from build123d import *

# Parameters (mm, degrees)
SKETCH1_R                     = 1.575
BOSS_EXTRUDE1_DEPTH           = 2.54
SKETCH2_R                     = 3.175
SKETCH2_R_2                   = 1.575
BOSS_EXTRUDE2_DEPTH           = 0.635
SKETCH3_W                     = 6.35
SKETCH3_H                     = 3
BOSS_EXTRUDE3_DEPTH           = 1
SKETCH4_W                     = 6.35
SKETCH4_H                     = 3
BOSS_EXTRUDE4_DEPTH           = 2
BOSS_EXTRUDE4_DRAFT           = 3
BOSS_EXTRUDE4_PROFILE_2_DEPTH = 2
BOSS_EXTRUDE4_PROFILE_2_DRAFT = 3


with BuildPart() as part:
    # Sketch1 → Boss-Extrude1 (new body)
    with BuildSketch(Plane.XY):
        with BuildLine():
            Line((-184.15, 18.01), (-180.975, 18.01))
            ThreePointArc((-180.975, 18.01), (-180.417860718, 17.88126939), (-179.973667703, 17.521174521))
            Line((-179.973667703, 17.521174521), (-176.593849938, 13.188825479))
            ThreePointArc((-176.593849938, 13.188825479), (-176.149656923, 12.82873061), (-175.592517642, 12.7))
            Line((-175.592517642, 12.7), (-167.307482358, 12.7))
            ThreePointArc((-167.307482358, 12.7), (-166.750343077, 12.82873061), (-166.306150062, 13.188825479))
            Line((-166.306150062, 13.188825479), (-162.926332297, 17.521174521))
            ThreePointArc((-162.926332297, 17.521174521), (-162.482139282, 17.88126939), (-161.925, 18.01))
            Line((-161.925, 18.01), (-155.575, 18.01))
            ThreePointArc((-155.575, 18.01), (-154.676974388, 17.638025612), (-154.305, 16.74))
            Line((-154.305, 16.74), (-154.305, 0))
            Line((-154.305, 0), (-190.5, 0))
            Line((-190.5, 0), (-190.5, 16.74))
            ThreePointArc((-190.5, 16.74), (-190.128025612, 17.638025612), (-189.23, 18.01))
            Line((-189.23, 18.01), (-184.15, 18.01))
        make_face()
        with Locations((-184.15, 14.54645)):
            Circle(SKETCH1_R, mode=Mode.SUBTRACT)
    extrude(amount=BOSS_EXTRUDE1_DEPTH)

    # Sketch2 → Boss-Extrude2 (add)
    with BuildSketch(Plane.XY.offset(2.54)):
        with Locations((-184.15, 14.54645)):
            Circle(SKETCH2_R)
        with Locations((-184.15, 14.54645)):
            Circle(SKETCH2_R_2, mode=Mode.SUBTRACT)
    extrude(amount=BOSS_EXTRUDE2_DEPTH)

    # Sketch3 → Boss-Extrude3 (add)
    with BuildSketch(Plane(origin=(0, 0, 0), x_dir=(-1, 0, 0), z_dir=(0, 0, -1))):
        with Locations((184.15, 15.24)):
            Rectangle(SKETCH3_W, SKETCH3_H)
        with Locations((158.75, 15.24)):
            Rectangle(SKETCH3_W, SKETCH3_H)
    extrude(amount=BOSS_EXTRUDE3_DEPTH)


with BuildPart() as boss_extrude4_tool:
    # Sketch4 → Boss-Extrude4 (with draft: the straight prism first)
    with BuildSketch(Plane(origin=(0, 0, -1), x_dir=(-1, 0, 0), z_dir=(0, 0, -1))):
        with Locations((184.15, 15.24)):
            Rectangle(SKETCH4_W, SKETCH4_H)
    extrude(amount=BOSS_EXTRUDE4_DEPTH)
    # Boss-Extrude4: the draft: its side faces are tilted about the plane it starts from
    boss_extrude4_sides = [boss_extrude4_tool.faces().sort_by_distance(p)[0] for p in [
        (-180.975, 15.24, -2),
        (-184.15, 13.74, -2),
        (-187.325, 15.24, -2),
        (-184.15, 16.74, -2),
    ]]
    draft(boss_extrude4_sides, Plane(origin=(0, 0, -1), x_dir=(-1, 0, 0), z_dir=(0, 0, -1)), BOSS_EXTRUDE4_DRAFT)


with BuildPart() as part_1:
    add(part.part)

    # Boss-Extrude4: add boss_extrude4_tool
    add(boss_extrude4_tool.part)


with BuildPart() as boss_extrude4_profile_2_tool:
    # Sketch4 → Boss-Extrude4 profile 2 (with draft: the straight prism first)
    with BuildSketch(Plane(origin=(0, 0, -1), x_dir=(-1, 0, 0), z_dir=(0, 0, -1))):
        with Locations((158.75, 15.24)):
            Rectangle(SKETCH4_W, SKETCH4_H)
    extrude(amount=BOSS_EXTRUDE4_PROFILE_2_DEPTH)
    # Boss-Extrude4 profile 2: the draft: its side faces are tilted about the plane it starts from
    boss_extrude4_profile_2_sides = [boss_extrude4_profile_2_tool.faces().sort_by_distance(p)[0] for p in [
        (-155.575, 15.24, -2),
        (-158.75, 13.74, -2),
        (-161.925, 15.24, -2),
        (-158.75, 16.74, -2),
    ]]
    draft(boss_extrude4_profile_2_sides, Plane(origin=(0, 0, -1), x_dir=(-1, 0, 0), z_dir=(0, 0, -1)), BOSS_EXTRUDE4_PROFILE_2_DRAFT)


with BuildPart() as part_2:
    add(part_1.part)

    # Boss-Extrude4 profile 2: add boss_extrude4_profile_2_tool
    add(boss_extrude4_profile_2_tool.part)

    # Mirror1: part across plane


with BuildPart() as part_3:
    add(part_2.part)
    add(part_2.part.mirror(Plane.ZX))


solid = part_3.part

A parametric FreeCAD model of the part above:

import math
import FreeCAD as App
import Part
import Sketcher

V = App.Vector
Q = App.Units.Quantity


def faces_at(feature, points):
    """Names of the faces that lie closest to the given points."""
    faces = feature.Shape.Faces
    near = lambda p: min(range(len(faces)), key=lambda i: faces[i].distToShape(Part.Vertex(*p))[0])
    return sorted({f"Face{near(p) + 1}" for p in points})

doc = App.newDocument("Part")
body = doc.addObject("PartDesign::Body", "Body")

# Sketch on XY plane
sketch1 = body.newObject("Sketcher::SketchObject", "Sketch")
sketch1.AttachmentSupport = (doc.getObject("XY_Plane"), [""])
sketch1.MapMode = "FlatFace"
sketch1.addGeometry([
    Part.ArcOfCircle(Part.Circle(V(-181, 16.7, 0), V(0, 0, 1), 1.3), math.radians(38), math.radians(90)),  # 0
    Part.LineSegment(V(-181, 18, 0), V(-189.2, 18, 0)),  # 1
    Part.ArcOfCircle(Part.Circle(V(-189.2, 16.7, 0), V(0, 0, 1), 1.3), math.radians(90), math.radians(180)),  # 2
    Part.LineSegment(V(-190.5, 16.7, 0), V(-190.5, 0, 0)),  # 3
    Part.LineSegment(V(-190.5, 0, 0), V(-154.3, 0, 0)),  # 4
    Part.LineSegment(V(-154.3, 0, 0), V(-154.3, 16.7, 0)),  # 5
    Part.ArcOfCircle(Part.Circle(V(-155.6, 16.7, 0), V(0, 0, 1), 1.3), math.radians(0), math.radians(90)),  # 6
    Part.LineSegment(V(-155.6, 18, 0), V(-161.9, 18, 0)),  # 7
    Part.ArcOfCircle(Part.Circle(V(-161.9, 16.7, 0), V(0, 0, 1), 1.3), math.radians(90), math.radians(142)),  # 8
    Part.LineSegment(V(-162.9, 17.5, 0), V(-166.3, 13.2, 0)),  # 9
    Part.ArcOfCircle(Part.Circle(V(-167.3, 14, 0), V(0, 0, 1), 1.3), math.radians(-90), math.radians(-38)),  # 10
    Part.LineSegment(V(-167.3, 12.7, 0), V(-175.6, 12.7, 0)),  # 11
    Part.ArcOfCircle(Part.Circle(V(-175.6, 14, 0), V(0, 0, 1), 1.3), math.radians(-142), math.radians(-90)),  # 12
    Part.LineSegment(V(-176.6, 13.2, 0), V(-180, 17.5, 0)),  # 13
    Part.Circle(V(-184.2, 14.5, 0), V(0, 0, 1), 1.6),  # 14
], False)
sketch1.addConstraint([
    Sketcher.Constraint("Tangent", 0, 2, 1, 1),
    Sketcher.Constraint("Tangent", 1, 2, 2, 1),
    Sketcher.Constraint("Tangent", 2, 2, 3, 1),
    Sketcher.Constraint("Coincident", 3, 2, 4, 1),
    Sketcher.Constraint("Coincident", 4, 2, 5, 1),
    Sketcher.Constraint("Tangent", 5, 2, 6, 1),
    Sketcher.Constraint("Tangent", 6, 2, 7, 1),
    Sketcher.Constraint("Tangent", 7, 2, 8, 1),
    Sketcher.Constraint("Tangent", 8, 2, 9, 1),
    Sketcher.Constraint("Tangent", 9, 2, 10, 2),
    Sketcher.Constraint("Tangent", 10, 1, 11, 1),
    Sketcher.Constraint("Tangent", 11, 2, 12, 2),
    Sketcher.Constraint("Tangent", 12, 1, 13, 1),
    Sketcher.Constraint("Tangent", 13, 2, 0, 1),
    Sketcher.Constraint("Horizontal", 1),
    Sketcher.Constraint("Vertical", 3),
    Sketcher.Constraint("Horizontal", 4),
    Sketcher.Constraint("Vertical", 5),
    Sketcher.Constraint("Horizontal", 7),
    Sketcher.Constraint("Horizontal", 11),
    Sketcher.Constraint("Equal", 0, 2),
    Sketcher.Constraint("Equal", 2, 6),
    Sketcher.Constraint("Equal", 6, 8),
    Sketcher.Constraint("Equal", 8, 10),
    Sketcher.Constraint("Equal", 10, 12),
    Sketcher.Constraint("PointOnObject", 3, 2, -1),
    Sketcher.Constraint("Horizontal", 2, 3, 6, 3),
    Sketcher.Constraint("Horizontal", 9, 2, 12, 1),
    Sketcher.Constraint("Radius", 0, Q("0.05 in")),
    Sketcher.Constraint("DistanceX", 0, 3, 6, 3, Q("1 in")),
    Sketcher.Constraint("DistanceX", 7, 2, 7, 1, Q("0.25 in")),
    Sketcher.Constraint("DistanceX", 2, 2, -1, 1, Q("7.5 in")),
    Sketcher.Constraint("DistanceY", -1, 1, 10, 1, Q("0.5 in")),
    Sketcher.Constraint("DistanceX", 2, 3, 14, 3, Q("0.2 in")),
    Sketcher.Constraint("Diameter", 14, 3.15),
    Sketcher.Constraint("DistanceX", 1, 2, 1, 1, Q("0.325 in")),
    Sketcher.Constraint("DistanceY", 3, 2, 3, 1, 16.74),
    Sketcher.Constraint("DistanceX", 11, 2, 11, 1, 8.285035),
    Sketcher.Constraint("DistanceY", -1, 1, 14, 3, 14.54645),
])
pad1 = body.newObject("PartDesign::Pad", "Pad")
pad1.Profile = sketch1
pad1.Length = Q("0.1 in")

# Sketch on XY plane
sketch2 = body.newObject("Sketcher::SketchObject", "Sketch001")
sketch2.AttachmentSupport = (doc.getObject("XY_Plane"), [""])
sketch2.MapMode = "FlatFace"
sketch2.AttachmentOffset = App.Placement(V(0, 0, 0.1 * 25.4), App.Rotation())
sketch2.addGeometry([
    Part.Circle(V(-184.2, 14.5, 0), V(0, 0, 1), 3.2),
    Part.Circle(V(-184.2, 14.5, 0), V(0, 0, 1), 1.6),
], False)
sketch2.addConstraint([
    Sketcher.Constraint("Coincident", 1, 3, 0, 3),
    Sketcher.Constraint("Diameter", 0, Q("0.25 in")),
    Sketcher.Constraint("Diameter", 1, 3.15),
    Sketcher.Constraint("DistanceX", 0, 3, -1, 1, Q("7.25 in")),
    Sketcher.Constraint("DistanceY", -1, 1, 0, 3, 14.54645),
])
pad2 = body.newObject("PartDesign::Pad", "Pad001")
pad2.Profile = sketch2
pad2.Length = Q("0.025 in")

# Sketch on XY plane
sketch3 = body.newObject("Sketcher::SketchObject", "Sketch002")
sketch3.AttachmentSupport = (doc.getObject("XY_Plane"), [""])
sketch3.MapMode = "FlatFace"
sketch3.addGeometry([
    Part.LineSegment(V(-181, 16.7, 0), V(-181, 13.7, 0)),  # 0
    Part.LineSegment(V(-181, 13.7, 0), V(-187.3, 13.7, 0)),  # 1
    Part.LineSegment(V(-187.3, 13.7, 0), V(-187.3, 16.7, 0)),  # 2
    Part.LineSegment(V(-187.3, 16.7, 0), V(-181, 16.7, 0)),  # 3
    Part.LineSegment(V(-155.6, 16.7, 0), V(-155.6, 13.7, 0)),  # 4
    Part.LineSegment(V(-155.6, 13.7, 0), V(-161.9, 13.7, 0)),  # 5
    Part.LineSegment(V(-161.9, 13.7, 0), V(-161.9, 16.7, 0)),  # 6
    Part.LineSegment(V(-161.9, 16.7, 0), V(-155.6, 16.7, 0)),  # 7
], False)
sketch3.addConstraint([
    Sketcher.Constraint("Coincident", 0, 2, 1, 1),
    Sketcher.Constraint("Coincident", 1, 2, 2, 1),
    Sketcher.Constraint("Coincident", 2, 2, 3, 1),
    Sketcher.Constraint("Coincident", 3, 2, 0, 1),
    Sketcher.Constraint("Coincident", 4, 2, 5, 1),
    Sketcher.Constraint("Coincident", 5, 2, 6, 1),
    Sketcher.Constraint("Coincident", 6, 2, 7, 1),
    Sketcher.Constraint("Coincident", 7, 2, 4, 1),
    Sketcher.Constraint("Vertical", 0),
    Sketcher.Constraint("Horizontal", 1),
    Sketcher.Constraint("Vertical", 2),
    Sketcher.Constraint("Horizontal", 3),
    Sketcher.Constraint("Vertical", 4),
    Sketcher.Constraint("Horizontal", 5),
    Sketcher.Constraint("Vertical", 6),
    Sketcher.Constraint("Horizontal", 7),
    Sketcher.Constraint("Horizontal", 1, 2, 4, 2),
    Sketcher.Constraint("Horizontal", 3, 2, 6, 2),
    Sketcher.Constraint("Equal", 3, 5),
    Sketcher.Constraint("DistanceX", 0, 2, 4, 2, Q("1 in")),
    Sketcher.Constraint("DistanceX", 1, 2, 1, 1, Q("0.25 in")),
    Sketcher.Constraint("DistanceX", 0, 2, -1, 1, Q("7.125 in")),
    Sketcher.Constraint("DistanceY", 0, 2, 0, 1, 3.0),
    Sketcher.Constraint("DistanceY", -1, 1, 0, 2, 13.74),
])
pad3 = body.newObject("PartDesign::Pad", "Pad002")
pad3.Profile = sketch3
pad3.Length = 1
pad3.Reversed = True
body2 = doc.addObject("PartDesign::Body", "Body001")

# Sketch on XY plane
sketch4 = body2.newObject("Sketcher::SketchObject", "Sketch003")
sketch4.AttachmentSupport = (doc.getObject("XY_Plane001"), [""])
sketch4.MapMode = "FlatFace"
sketch4.AttachmentOffset = App.Placement(V(0, 0, -1), App.Rotation())
sketch4.addGeometry([
    Part.LineSegment(V(-181, 16.7, 0), V(-181, 13.7, 0)),
    Part.LineSegment(V(-181, 13.7, 0), V(-187.3, 13.7, 0)),
    Part.LineSegment(V(-187.3, 13.7, 0), V(-187.3, 16.7, 0)),
    Part.LineSegment(V(-187.3, 16.7, 0), V(-181, 16.7, 0)),
], False)
sketch4.addConstraint([
    Sketcher.Constraint("Coincident", 0, 2, 1, 1),
    Sketcher.Constraint("Coincident", 1, 2, 2, 1),
    Sketcher.Constraint("Coincident", 2, 2, 3, 1),
    Sketcher.Constraint("Coincident", 3, 2, 0, 1),
    Sketcher.Constraint("Vertical", 0),
    Sketcher.Constraint("Horizontal", 1),
    Sketcher.Constraint("Vertical", 2),
    Sketcher.Constraint("Horizontal", 3),
    Sketcher.Constraint("DistanceX", 1, 2, 1, 1, Q("0.25 in")),
    Sketcher.Constraint("DistanceX", 0, 2, -1, 1, Q("7.125 in")),
    Sketcher.Constraint("DistanceY", 0, 2, 0, 1, 3.0),
    Sketcher.Constraint("DistanceY", -1, 1, 0, 2, 13.74),
])
pad4 = body2.newObject("PartDesign::Pad", "Pad003")
pad4.Profile = sketch4
pad4.Length = 2
pad4.Reversed = True
doc.recompute()

datumplane = body2.newObject("PartDesign::Plane", "DatumPlane")
datumplane.AttachmentSupport = (doc.getObject("XY_Plane001"), [""])
datumplane.MapMode = "FlatFace"
datumplane.AttachmentOffset = App.Placement(V(0, 0, -1), App.Rotation())
draft = body2.newObject("PartDesign::Draft", "Draft")
draft.Base = (pad4, faces_at(pad4, [
    (-180.975, 15.24, -2),
    (-184.15, 13.74, -2),
    (-187.325, 15.24, -2),
    (-184.15, 16.74, -2),
]))
draft.NeutralPlane = (datumplane, [""])
draft.Angle = 3
draft.Reversed = True
doc.recompute()

boolean = body.newObject("PartDesign::Boolean", "Boolean")
boolean.Type = "Fuse"
boolean.addObjects([body2])
body3 = doc.addObject("PartDesign::Body", "Body002")

# Sketch on XY plane
sketch5 = body3.newObject("Sketcher::SketchObject", "Sketch004")
sketch5.AttachmentSupport = (doc.getObject("XY_Plane002"), [""])
sketch5.MapMode = "FlatFace"
sketch5.AttachmentOffset = App.Placement(V(0, 0, -1), App.Rotation())
sketch5.addGeometry([
    Part.LineSegment(V(-155.6, 16.7, 0), V(-155.6, 13.7, 0)),
    Part.LineSegment(V(-155.6, 13.7, 0), V(-161.9, 13.7, 0)),
    Part.LineSegment(V(-161.9, 13.7, 0), V(-161.9, 16.7, 0)),
    Part.LineSegment(V(-161.9, 16.7, 0), V(-155.6, 16.7, 0)),
], False)
sketch5.addConstraint([
    Sketcher.Constraint("Coincident", 0, 2, 1, 1),
    Sketcher.Constraint("Coincident", 1, 2, 2, 1),
    Sketcher.Constraint("Coincident", 2, 2, 3, 1),
    Sketcher.Constraint("Coincident", 3, 2, 0, 1),
    Sketcher.Constraint("Vertical", 0),
    Sketcher.Constraint("Horizontal", 1),
    Sketcher.Constraint("Vertical", 2),
    Sketcher.Constraint("Horizontal", 3),
    Sketcher.Constraint("DistanceX", 1, 2, 1, 1, Q("0.25 in")),
    Sketcher.Constraint("DistanceX", 0, 2, -1, 1, Q("6.125 in")),
    Sketcher.Constraint("DistanceY", 0, 2, 0, 1, 3.0),
    Sketcher.Constraint("DistanceY", -1, 1, 0, 2, 13.74),
])
pad5 = body3.newObject("PartDesign::Pad", "Pad004")
pad5.Profile = sketch5
pad5.Length = 2
pad5.Reversed = True
doc.recompute()

datumplane2 = body3.newObject("PartDesign::Plane", "DatumPlane001")
datumplane2.AttachmentSupport = (doc.getObject("XY_Plane002"), [""])
datumplane2.MapMode = "FlatFace"
datumplane2.AttachmentOffset = App.Placement(V(0, 0, -1), App.Rotation())
draft2 = body3.newObject("PartDesign::Draft", "Draft001")
draft2.Base = (pad5, faces_at(pad5, [
    (-155.575, 15.24, -2),
    (-158.75, 13.74, -2),
    (-161.925, 15.24, -2),
    (-158.75, 16.74, -2),
]))
draft2.NeutralPlane = (datumplane2, [""])
draft2.Angle = 3
draft2.Reversed = True
doc.recompute()

boolean2 = body.newObject("PartDesign::Boolean", "Boolean001")
boolean2.Type = "Fuse"
boolean2.addObjects([body3])
body4 = doc.addObject("PartDesign::Body", "Body003")
doc.recompute()

body4.BaseFeature = body
doc.recompute()

mirroring = doc.addObject("Part::Mirroring", "Mirroring")
mirroring.Source = body
mirroring.Base = V(0, 0, 0)
mirroring.Normal = V(0, 1, 0)
body5 = doc.addObject("PartDesign::Body", "Body004")
body5.BaseFeature = mirroring
boolean3 = body4.newObject("PartDesign::Boolean", "Boolean002")
boolean3.Type = "Fuse"
boolean3.addObjects([body5])
doc.recompute()
mirroring.Visibility = False

doc.recompute()
